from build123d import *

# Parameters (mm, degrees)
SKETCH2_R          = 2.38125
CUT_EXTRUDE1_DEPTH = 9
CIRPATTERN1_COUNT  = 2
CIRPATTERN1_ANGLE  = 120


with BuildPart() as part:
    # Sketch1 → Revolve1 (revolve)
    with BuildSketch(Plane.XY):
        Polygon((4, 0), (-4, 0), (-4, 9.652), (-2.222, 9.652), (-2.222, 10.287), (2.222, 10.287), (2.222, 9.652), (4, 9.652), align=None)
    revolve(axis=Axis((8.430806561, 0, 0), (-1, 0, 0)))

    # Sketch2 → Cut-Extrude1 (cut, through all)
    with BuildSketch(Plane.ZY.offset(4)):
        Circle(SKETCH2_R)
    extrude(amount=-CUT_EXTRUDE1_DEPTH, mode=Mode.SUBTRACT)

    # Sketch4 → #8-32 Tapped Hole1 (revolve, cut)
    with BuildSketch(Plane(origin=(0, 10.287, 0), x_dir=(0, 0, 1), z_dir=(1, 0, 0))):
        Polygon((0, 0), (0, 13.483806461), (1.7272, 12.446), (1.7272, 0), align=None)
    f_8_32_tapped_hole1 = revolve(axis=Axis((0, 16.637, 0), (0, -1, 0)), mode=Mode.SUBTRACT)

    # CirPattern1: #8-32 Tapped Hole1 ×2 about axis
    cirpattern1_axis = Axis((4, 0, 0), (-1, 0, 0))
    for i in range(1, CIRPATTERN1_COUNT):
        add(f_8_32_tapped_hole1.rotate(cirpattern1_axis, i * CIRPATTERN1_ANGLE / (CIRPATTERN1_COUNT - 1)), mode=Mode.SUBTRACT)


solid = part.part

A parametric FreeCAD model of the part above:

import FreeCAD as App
import Part
import Sketcher
Q = App.Units.Quantity


def add_polygon(sketch, points):
    """Adds a closed chain of lines whose ends are joined by coincident constraints."""
    first, n = sketch.GeometryCount, len(points)
    for a, b in zip(points, points[1:] + points[:1]):
        sketch.addGeometry(Part.LineSegment(App.Vector(*a, 0), App.Vector(*b, 0)), False)
    for i in range(n):
        sketch.addConstraint(Sketcher.Constraint("Coincident", first + i, 2, first + (i + 1) % n, 1))

doc = App.newDocument("Part")
body = doc.addObject("PartDesign::Body", "Body")

# Sketch on XY plane
sketch1 = body.newObject("Sketcher::SketchObject", "Sketch")
sketch1.AttachmentSupport = (doc.getObject("XY_Plane"), [""])
sketch1.MapMode = "FlatFace"
add_polygon(sketch1, [(-4, 0), (4, 0), (4, 9.7), (2.2, 9.7), (2.2, 10.3), (-2.2, 10.3), (-2.2, 9.7), (-4, 9.7)])  # lines 0-7
sketch1.addConstraint(Sketcher.Constraint("Horizontal", 0))
sketch1.addConstraint(Sketcher.Constraint("Vertical", 1))
sketch1.addConstraint(Sketcher.Constraint("Horizontal", 2))
sketch1.addConstraint(Sketcher.Constraint("Vertical", 3))
sketch1.addConstraint(Sketcher.Constraint("Horizontal", 4))
sketch1.addConstraint(Sketcher.Constraint("Vertical", 5))
sketch1.addConstraint(Sketcher.Constraint("Horizontal", 6))
sketch1.addConstraint(Sketcher.Constraint("Vertical", 7))
sketch1.addConstraint(Sketcher.Constraint("Symmetric", 0, 2, 7, 2, -1, 1))
sketch1.addConstraint(Sketcher.Constraint("Symmetric", 2, 2, 5, 2, -2))
sketch1.addConstraint(Sketcher.Constraint("DistanceX", 2, 2, 2, 1, Q("0.07 in")))
sketch1.addConstraint(Sketcher.Constraint("DistanceY", 1, 1, 1, 2, Q("0.38 in")))
sketch1.addConstraint(Sketcher.Constraint("DistanceY", 3, 1, 3, 2, Q("0.025 in")))
sketch1.addConstraint(Sketcher.Constraint("DistanceX", 0, 1, 0, 2, 8.0))
revolution = body.newObject("PartDesign::Revolution", "Revolution")
revolution.Profile = sketch1
revolution.ReferenceAxis = (sketch1, ["H_Axis"])
revolution.Angle = 360

# Sketch on YZ plane
sketch2 = body.newObject("Sketcher::SketchObject", "Sketch001")
sketch2.AttachmentSupport = (doc.getObject("YZ_Plane"), [""])
sketch2.MapMode = "FlatFace"
sketch2.AttachmentOffset = App.Placement(App.Vector(0, 0, -4), App.Rotation())
sketch2.addGeometry(Part.Circle(App.Vector(0, 0, 0), App.Vector(0, 0, 1), 2.4), False)
sketch2.addConstraint(Sketcher.Constraint("Coincident", 0, 3, -1, 1))
sketch2.addConstraint(Sketcher.Constraint("Diameter", 0, Q("0.1875 in")))
pocket1 = body.newObject("PartDesign::Pocket", "Pocket")
pocket1.Profile = sketch2
pocket1.Type = "ThroughAll"
pocket1.Reversed = True

# Sketch on YZ plane
sketch3 = body.newObject("Sketcher::SketchObject", "Sketch002")
sketch3.AttachmentSupport = (doc.getObject("YZ_Plane"), [""])
sketch3.MapMode = "FlatFace"
add_polygon(sketch3, [(-3.2, 0), (10.3, 0), (10.3, 1.7), (-2.2, 1.7)])  # lines 0-3
sketch3.addConstraint(Sketcher.Constraint("Horizontal", 0))
sketch3.addConstraint(Sketcher.Constraint("Vertical", 1))
sketch3.addConstraint(Sketcher.Constraint("Horizontal", 2))
sketch3.addConstraint(Sketcher.Constraint("PointOnObject", 0, 2, -1))
sketch3.addConstraint(Sketcher.Constraint("Angle", 3, Q("-121 deg")))
sketch3.addConstraint(Sketcher.Constraint("DistanceX", 2, 2, 2, 1, Q("0.49 in")))
sketch3.addConstraint(Sketcher.Constraint("DistanceY", 1, 1, 1, 2, Q("0.068 in")))
sketch3.addConstraint(Sketcher.Constraint("DistanceX", -1, 1, 0, 2, Q("0.405 in")))
groove = body.newObject("PartDesign::Groove", "Groove")
groove.Profile = sketch3
groove.ReferenceAxis = (sketch3, ["H_Axis"])
groove.Angle = 360
doc.recompute()

polarpattern = body.newObject("PartDesign::PolarPattern", "PolarPattern")
polarpattern.Originals = [groove]
polarpattern.Axis = (doc.getObject("X_Axis"), [""])
polarpattern.Angle = 120
polarpattern.Occurrences = 2
polarpattern.Reversed = True
body.Tip = polarpattern

doc.recompute()
